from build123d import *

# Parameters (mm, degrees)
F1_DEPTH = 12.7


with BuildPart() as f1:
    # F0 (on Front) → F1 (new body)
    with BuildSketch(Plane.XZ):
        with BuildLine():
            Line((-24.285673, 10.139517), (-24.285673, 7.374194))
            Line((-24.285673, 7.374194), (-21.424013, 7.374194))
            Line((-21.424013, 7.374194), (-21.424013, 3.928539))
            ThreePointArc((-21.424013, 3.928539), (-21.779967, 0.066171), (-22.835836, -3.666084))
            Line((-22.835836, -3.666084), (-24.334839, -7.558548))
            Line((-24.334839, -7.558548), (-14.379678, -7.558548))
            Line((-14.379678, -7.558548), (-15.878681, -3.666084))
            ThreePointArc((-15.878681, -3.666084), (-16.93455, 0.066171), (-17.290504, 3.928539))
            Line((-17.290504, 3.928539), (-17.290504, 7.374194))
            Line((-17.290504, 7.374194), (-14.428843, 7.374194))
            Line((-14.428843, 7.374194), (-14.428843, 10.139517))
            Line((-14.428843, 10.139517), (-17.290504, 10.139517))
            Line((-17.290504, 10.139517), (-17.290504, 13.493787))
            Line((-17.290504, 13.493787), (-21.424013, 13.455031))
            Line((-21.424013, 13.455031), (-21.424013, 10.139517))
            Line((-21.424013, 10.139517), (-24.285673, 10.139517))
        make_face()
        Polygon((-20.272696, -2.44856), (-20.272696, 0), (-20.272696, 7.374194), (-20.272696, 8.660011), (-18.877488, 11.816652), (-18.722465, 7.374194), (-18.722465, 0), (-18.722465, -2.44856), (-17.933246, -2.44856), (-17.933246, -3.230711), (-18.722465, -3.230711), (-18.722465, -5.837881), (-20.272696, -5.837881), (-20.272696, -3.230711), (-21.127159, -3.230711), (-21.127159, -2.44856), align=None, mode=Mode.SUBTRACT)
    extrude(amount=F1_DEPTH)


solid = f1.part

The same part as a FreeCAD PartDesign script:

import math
import FreeCAD as App
import Part
import Sketcher

V = App.Vector
Q = App.Units.Quantity


def add_polygon(sketch, points):
    """Adds a closed chain of lines whose ends are joined by coincident constraints."""
    first, n = sketch.GeometryCount, len(points)
    for a, b in zip(points, points[1:] + points[:1]):
        sketch.addGeometry(Part.LineSegment(App.Vector(*a, 0), App.Vector(*b, 0)), False)
    for i in range(n):
        sketch.addConstraint(Sketcher.Constraint("Coincident", first + i, 2, first + (i + 1) % n, 1))

doc = App.newDocument("Part")
body = doc.addObject("PartDesign::Body", "Body")

sketch1 = body.newObject("Sketcher::SketchObject", "Sketch")
sketch1.AttachmentSupport = (doc.getObject("XZ_Plane"), [""])
sketch1.MapMode = "FlatFace"
sketch1.addGeometry(Part.LineSegment(V(-24.285673, 10.139517, 0), V(-24.285673, 7.374194, 0)), False)
sketch1.addGeometry(Part.LineSegment(V(-24.285673, 7.374194, 0), V(-21.424013, 7.374194, 0)), False)
sketch1.addGeometry(Part.LineSegment(V(-21.424013, 7.374194, 0), V(-21.424013, 3.928539, 0)), False)
sketch1.addGeometry(Part.ArcOfCircle(Part.Circle(V(-42.556838, 3.928544, 0), V(0, 0, 1), 21.132825), math.radians(-21.061873), math.radians(-0.000013)), False)
sketch1.addGeometry(Part.LineSegment(V(-22.835836, -3.666084, 0), V(-24.334839, -7.558548, 0)), False)
sketch1.addGeometry(Part.LineSegment(V(-24.334839, -7.558548, 0), V(-14.379678, -7.558548, 0)), False)
sketch1.addGeometry(Part.LineSegment(V(-14.379678, -7.558548, 0), V(-15.878681, -3.666084, 0)), False)
sketch1.addGeometry(Part.ArcOfCircle(Part.Circle(V(3.842321, 3.928544, 0), V(0, 0, 1), 21.132825), math.radians(-179.999987), math.radians(-158.938127)), False)
sketch1.addGeometry(Part.LineSegment(V(-17.290504, 3.928539, 0), V(-17.290504, 7.374194, 0)), False)
sketch1.addGeometry(Part.LineSegment(V(-17.290504, 7.374194, 0), V(-14.428843, 7.374194, 0)), False)
sketch1.addGeometry(Part.LineSegment(V(-14.428843, 7.374194, 0), V(-14.428843, 10.139517, 0)), False)
sketch1.addGeometry(Part.LineSegment(V(-14.428843, 10.139517, 0), V(-17.290504, 10.139517, 0)), False)
sketch1.addGeometry(Part.LineSegment(V(-17.290504, 10.139517, 0), V(-17.290504, 13.493787, 0)), False)
sketch1.addGeometry(Part.LineSegment(V(-17.290504, 13.493787, 0), V(-21.424013, 13.455031, 0)), False)
sketch1.addGeometry(Part.LineSegment(V(-21.424013, 13.455031, 0), V(-21.424013, 10.139517, 0)), False)
sketch1.addGeometry(Part.LineSegment(V(-21.424013, 10.139517, 0), V(-24.285673, 10.139517, 0)), False)
add_polygon(sketch1, [(-21.127159, -2.44856), (-20.272696, -2.44856), (-20.272696, 8.660011), (-18.877488, 11.816652), (-18.722465, 7.374194), (-18.722465, -2.44856), (-17.933246, -2.44856), (-17.933246, -3.230711), (-18.722465, -3.230711), (-18.722465, -5.837881), (-20.272696, -5.837881), (-20.272696, -3.230711), (-21.127159, -3.230711)])
sketch1.addConstraint(Sketcher.Constraint("Coincident", 0, 2, 1, 1))
sketch1.addConstraint(Sketcher.Constraint("Coincident", 1, 2, 2, 1))
sketch1.addConstraint(Sketcher.Constraint("Coincident", 2, 2, 3, 2))
sketch1.addConstraint(Sketcher.Constraint("Coincident", 3, 1, 4, 1))
sketch1.addConstraint(Sketcher.Constraint("Coincident", 4, 2, 5, 1))
sketch1.addConstraint(Sketcher.Constraint("Coincident", 5, 2, 6, 1))
sketch1.addConstraint(Sketcher.Constraint("Coincident", 6, 2, 7, 2))
sketch1.addConstraint(Sketcher.Constraint("Coincident", 7, 1, 8, 1))
sketch1.addConstraint(Sketcher.Constraint("Coincident", 8, 2, 9, 1))
sketch1.addConstraint(Sketcher.Constraint("Coincident", 9, 2, 10, 1))
sketch1.addConstraint(Sketcher.Constraint("Coincident", 10, 2, 11, 1))
sketch1.addConstraint(Sketcher.Constraint("Coincident", 11, 2, 12, 1))
sketch1.addConstraint(Sketcher.Constraint("Coincident", 12, 2, 13, 1))
sketch1.addConstraint(Sketcher.Constraint("Coincident", 13, 2, 14, 1))
sketch1.addConstraint(Sketcher.Constraint("Coincident", 14, 2, 15, 1))
sketch1.addConstraint(Sketcher.Constraint("Coincident", 15, 2, 0, 1))
sketch1.addConstraint(Sketcher.Constraint("Vertical", 0))
sketch1.addConstraint(Sketcher.Constraint("Horizontal", 1))
sketch1.addConstraint(Sketcher.Constraint("Vertical", 2))
sketch1.addConstraint(Sketcher.Constraint("Horizontal", 5))
sketch1.addConstraint(Sketcher.Constraint("Vertical", 8))
sketch1.addConstraint(Sketcher.Constraint("Horizontal", 9))
sketch1.addConstraint(Sketcher.Constraint("Vertical", 10))
sketch1.addConstraint(Sketcher.Constraint("Horizontal", 11))
sketch1.addConstraint(Sketcher.Constraint("Vertical", 12))
sketch1.addConstraint(Sketcher.Constraint("Vertical", 14))
sketch1.addConstraint(Sketcher.Constraint("Horizontal", 15))
sketch1.addConstraint(Sketcher.Constraint("Horizontal", 16))
sketch1.addConstraint(Sketcher.Constraint("Vertical", 17))
sketch1.addConstraint(Sketcher.Constraint("Vertical", 20))
sketch1.addConstraint(Sketcher.Constraint("Horizontal", 21))
sketch1.addConstraint(Sketcher.Constraint("Vertical", 22))
sketch1.addConstraint(Sketcher.Constraint("Horizontal", 23))
sketch1.addConstraint(Sketcher.Constraint("Vertical", 24))
sketch1.addConstraint(Sketcher.Constraint("Horizontal", 25))
sketch1.addConstraint(Sketcher.Constraint("Vertical", 26))
sketch1.addConstraint(Sketcher.Constraint("Horizontal", 27))
sketch1.addConstraint(Sketcher.Constraint("Vertical", 28))
sketch1.addConstraint(Sketcher.Constraint("DistanceX", 0, 2, 5, 2, Q("0.3899998 in")))
sketch1.addConstraint(Sketcher.Constraint("DistanceY", 16, 2, -1, 1, Q("0.0964 in")))
sketch1.addConstraint(Sketcher.Constraint("DistanceY", 20, 2, -1, 1, Q("0.0964 in")))
sketch1.addConstraint(Sketcher.Constraint("Radius", 3, 21.132825))
sketch1.addConstraint(Sketcher.Constraint("Radius", 7, 21.132825))
sketch1.addConstraint(Sketcher.Constraint("DistanceX", 1, 1, 1, 2, 2.86166))
sketch1.addConstraint(Sketcher.Constraint("DistanceX", 5, 1, 5, 2, 9.955161))
sketch1.addConstraint(Sketcher.Constraint("DistanceX", 9, 1, 9, 2, 2.861661))
sketch1.addConstraint(Sketcher.Constraint("DistanceX", 11, 2, 11, 1, 2.861661))
sketch1.addConstraint(Sketcher.Constraint("DistanceX", 15, 2, 15, 1, 2.86166))
sketch1.addConstraint(Sketcher.Constraint("DistanceX", 21, 1, 21, 2, 0.789219))
sketch1.addConstraint(Sketcher.Constraint("DistanceX", 23, 2, 23, 1, 0.789219))
sketch1.addConstraint(Sketcher.Constraint("DistanceX", 25, 2, 25, 1, 1.550231))
sketch1.addConstraint(Sketcher.Constraint("DistanceY", 12, 1, 12, 2, 3.35427))
sketch1.addConstraint(Sketcher.Constraint("DistanceY", 17, 1, 17, 2, 11.108571))
sketch1.addConstraint(Sketcher.Constraint("DistanceY", 22, 2, 22, 1, 0.782151))
sketch1.addConstraint(Sketcher.Constraint("DistanceY", 24, 2, 24, 1, 2.60717))
sketch1.addConstraint(Sketcher.Constraint("DistanceY", 26, 1, 26, 2, 2.60717))
sketch1.addConstraint(Sketcher.Constraint("DistanceX", 3, 3, 3, 1, 19.721002))
sketch1.addConstraint(Sketcher.Constraint("DistanceY", 16, 2, 2, 2, 6.377099))
sketch1.addConstraint(Sketcher.Constraint("DistanceY", 16, 2, 7, 1, 6.377099))
sketch1.addConstraint(Sketcher.Constraint("Distance", 13, 4.133691))
sketch1.addConstraint(Sketcher.Constraint("Distance", 18, 3.45123))
sketch1.addConstraint(Sketcher.Constraint("DistanceX", 16, 1, 16, 2, 0.854463))
sketch1.addConstraint(Sketcher.Constraint("DistanceX", 27, 2, 27, 1, 0.854463))
sketch1.addConstraint(Sketcher.Constraint("DistanceY", 0, 2, 0, 1, 2.765323))
sketch1.addConstraint(Sketcher.Constraint("DistanceY", 2, 2, 2, 1, 3.445655))
sketch1.addConstraint(Sketcher.Constraint("DistanceY", 8, 1, 8, 2, 3.445655))
sketch1.addConstraint(Sketcher.Constraint("DistanceY", 10, 1, 10, 2, 2.765323))
sketch1.addConstraint(Sketcher.Constraint("DistanceY", 14, 2, 14, 1, 3.315514))
sketch1.addConstraint(Sketcher.Constraint("DistanceY", 20, 2, 20, 1, 9.822754))
sketch1.addConstraint(Sketcher.Constraint("DistanceX", -1, 1, 7, 3, 3.842321))
sketch1.addConstraint(Sketcher.Constraint("DistanceX", 6, 2, -1, 1, 15.878681))
sketch1.addConstraint(Sketcher.Constraint("DistanceX", 27, 2, -1, 1, 21.127159))
sketch1.addConstraint(Sketcher.Constraint("DistanceY", 3, 3, 0, 2, 3.44565))
sketch1.addConstraint(Sketcher.Constraint("DistanceY", 7, 3, 0, 2, 3.44565))
sketch1.addConstraint(Sketcher.Constraint("DistanceY", 4, 2, 3, 3, 11.487092))
sketch1.addConstraint(Sketcher.Constraint("DistanceY", 18, 2, 13, 2, 1.638379))
pad1 = body.newObject("PartDesign::Pad", "Pad")
pad1.Profile = sketch1
pad1.Length = Q("0.5 in")

doc.recompute()
